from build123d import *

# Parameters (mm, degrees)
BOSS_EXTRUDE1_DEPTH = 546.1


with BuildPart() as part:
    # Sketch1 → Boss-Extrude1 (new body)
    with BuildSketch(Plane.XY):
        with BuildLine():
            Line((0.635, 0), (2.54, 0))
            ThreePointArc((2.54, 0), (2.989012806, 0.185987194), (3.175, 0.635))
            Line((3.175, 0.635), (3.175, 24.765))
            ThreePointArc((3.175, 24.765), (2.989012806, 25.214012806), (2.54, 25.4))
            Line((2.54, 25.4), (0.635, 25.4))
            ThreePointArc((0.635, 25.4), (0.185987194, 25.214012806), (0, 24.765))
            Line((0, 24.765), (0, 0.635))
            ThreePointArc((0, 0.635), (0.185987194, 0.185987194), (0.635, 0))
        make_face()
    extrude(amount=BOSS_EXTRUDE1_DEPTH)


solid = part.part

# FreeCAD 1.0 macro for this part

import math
import FreeCAD as App
import Part
import Sketcher
from FreeCAD import Vector
Q = App.Units.Quantity

doc = App.newDocument("Part")
body = doc.addObject("PartDesign::Body", "Body")

# Sketch on XY plane
sketch1 = doc.addObject("Sketcher::SketchObject", "Sketch")
body.addObject(sketch1)
sketch1.AttachmentSupport = (doc.XY_Plane, [""])
sketch1.MapMode = "FlatFace"
sketch1.addGeometry(Part.LineSegment(Vector(0.6, 0, 0), Vector(2.5, 0, 0)), False)
sketch1.addGeometry(Part.ArcOfCircle(Part.Circle(Vector(2.5, 0.6, 0), Vector(0, 0, 1), 0.6), math.radians(-90), math.radians(0)), False)
sketch1.addGeometry(Part.LineSegment(Vector(3.2, 0.6, 0), Vector(3.2, 24.8, 0)), False)
sketch1.addGeometry(Part.ArcOfCircle(Part.Circle(Vector(2.5, 24.8, 0), Vector(0, 0, 1), 0.6), math.radians(0), math.radians(90)), False)
sketch1.addGeometry(Part.LineSegment(Vector(2.5, 25.4, 0), Vector(0.6, 25.4, 0)), False)
sketch1.addGeometry(Part.ArcOfCircle(Part.Circle(Vector(0.6, 24.8, 0), Vector(0, 0, 1), 0.6), math.radians(90), math.radians(180)), False)
sketch1.addGeometry(Part.LineSegment(Vector(0, 24.8, 0), Vector(0, 0.6, 0)), False)
sketch1.addGeometry(Part.ArcOfCircle(Part.Circle(Vector(0.6, 0.6, 0), Vector(0, 0, 1), 0.6), math.radians(180), math.radians(270)), False)
sketch1.addConstraint(Sketcher.Constraint("Tangent", 0, 2, 1, 1))
sketch1.addConstraint(Sketcher.Constraint("Tangent", 1, 2, 2, 1))
sketch1.addConstraint(Sketcher.Constraint("Tangent", 2, 2, 3, 1))
sketch1.addConstraint(Sketcher.Constraint("Tangent", 3, 2, 4, 1))
sketch1.addConstraint(Sketcher.Constraint("Tangent", 4, 2, 5, 1))
sketch1.addConstraint(Sketcher.Constraint("Tangent", 5, 2, 6, 1))
sketch1.addConstraint(Sketcher.Constraint("Tangent", 6, 2, 7, 1))
sketch1.addConstraint(Sketcher.Constraint("Tangent", 7, 2, 0, 1))
sketch1.addConstraint(Sketcher.Constraint("Horizontal", 0))
sketch1.addConstraint(Sketcher.Constraint("Vertical", 2))
sketch1.addConstraint(Sketcher.Constraint("Horizontal", 4))
sketch1.addConstraint(Sketcher.Constraint("Vertical", 6))
sketch1.addConstraint(Sketcher.Constraint("Equal", 1, 3))
sketch1.addConstraint(Sketcher.Constraint("Equal", 3, 5))
sketch1.addConstraint(Sketcher.Constraint("Equal", 5, 7))
sketch1.addConstraint(Sketcher.Constraint("PointOnObject", 0, 2, -1))
sketch1.addConstraint(Sketcher.Constraint("PointOnObject", 5, 2, -2))
sketch1.addConstraint(Sketcher.Constraint("DistanceY", -1, 1, 3, 2, Q("1 in")))
sketch1.addConstraint(Sketcher.Constraint("Radius", 1, Q("0.025 in")))
sketch1.addConstraint(Sketcher.Constraint("DistanceX", -1, 1, 1, 3, Q("0.1 in")))
pad1 = doc.addObject("PartDesign::Pad", "Pad")
body.addObject(pad1)
pad1.Profile = sketch1
pad1.Length = Q("21.5 in")

doc.recompute()
